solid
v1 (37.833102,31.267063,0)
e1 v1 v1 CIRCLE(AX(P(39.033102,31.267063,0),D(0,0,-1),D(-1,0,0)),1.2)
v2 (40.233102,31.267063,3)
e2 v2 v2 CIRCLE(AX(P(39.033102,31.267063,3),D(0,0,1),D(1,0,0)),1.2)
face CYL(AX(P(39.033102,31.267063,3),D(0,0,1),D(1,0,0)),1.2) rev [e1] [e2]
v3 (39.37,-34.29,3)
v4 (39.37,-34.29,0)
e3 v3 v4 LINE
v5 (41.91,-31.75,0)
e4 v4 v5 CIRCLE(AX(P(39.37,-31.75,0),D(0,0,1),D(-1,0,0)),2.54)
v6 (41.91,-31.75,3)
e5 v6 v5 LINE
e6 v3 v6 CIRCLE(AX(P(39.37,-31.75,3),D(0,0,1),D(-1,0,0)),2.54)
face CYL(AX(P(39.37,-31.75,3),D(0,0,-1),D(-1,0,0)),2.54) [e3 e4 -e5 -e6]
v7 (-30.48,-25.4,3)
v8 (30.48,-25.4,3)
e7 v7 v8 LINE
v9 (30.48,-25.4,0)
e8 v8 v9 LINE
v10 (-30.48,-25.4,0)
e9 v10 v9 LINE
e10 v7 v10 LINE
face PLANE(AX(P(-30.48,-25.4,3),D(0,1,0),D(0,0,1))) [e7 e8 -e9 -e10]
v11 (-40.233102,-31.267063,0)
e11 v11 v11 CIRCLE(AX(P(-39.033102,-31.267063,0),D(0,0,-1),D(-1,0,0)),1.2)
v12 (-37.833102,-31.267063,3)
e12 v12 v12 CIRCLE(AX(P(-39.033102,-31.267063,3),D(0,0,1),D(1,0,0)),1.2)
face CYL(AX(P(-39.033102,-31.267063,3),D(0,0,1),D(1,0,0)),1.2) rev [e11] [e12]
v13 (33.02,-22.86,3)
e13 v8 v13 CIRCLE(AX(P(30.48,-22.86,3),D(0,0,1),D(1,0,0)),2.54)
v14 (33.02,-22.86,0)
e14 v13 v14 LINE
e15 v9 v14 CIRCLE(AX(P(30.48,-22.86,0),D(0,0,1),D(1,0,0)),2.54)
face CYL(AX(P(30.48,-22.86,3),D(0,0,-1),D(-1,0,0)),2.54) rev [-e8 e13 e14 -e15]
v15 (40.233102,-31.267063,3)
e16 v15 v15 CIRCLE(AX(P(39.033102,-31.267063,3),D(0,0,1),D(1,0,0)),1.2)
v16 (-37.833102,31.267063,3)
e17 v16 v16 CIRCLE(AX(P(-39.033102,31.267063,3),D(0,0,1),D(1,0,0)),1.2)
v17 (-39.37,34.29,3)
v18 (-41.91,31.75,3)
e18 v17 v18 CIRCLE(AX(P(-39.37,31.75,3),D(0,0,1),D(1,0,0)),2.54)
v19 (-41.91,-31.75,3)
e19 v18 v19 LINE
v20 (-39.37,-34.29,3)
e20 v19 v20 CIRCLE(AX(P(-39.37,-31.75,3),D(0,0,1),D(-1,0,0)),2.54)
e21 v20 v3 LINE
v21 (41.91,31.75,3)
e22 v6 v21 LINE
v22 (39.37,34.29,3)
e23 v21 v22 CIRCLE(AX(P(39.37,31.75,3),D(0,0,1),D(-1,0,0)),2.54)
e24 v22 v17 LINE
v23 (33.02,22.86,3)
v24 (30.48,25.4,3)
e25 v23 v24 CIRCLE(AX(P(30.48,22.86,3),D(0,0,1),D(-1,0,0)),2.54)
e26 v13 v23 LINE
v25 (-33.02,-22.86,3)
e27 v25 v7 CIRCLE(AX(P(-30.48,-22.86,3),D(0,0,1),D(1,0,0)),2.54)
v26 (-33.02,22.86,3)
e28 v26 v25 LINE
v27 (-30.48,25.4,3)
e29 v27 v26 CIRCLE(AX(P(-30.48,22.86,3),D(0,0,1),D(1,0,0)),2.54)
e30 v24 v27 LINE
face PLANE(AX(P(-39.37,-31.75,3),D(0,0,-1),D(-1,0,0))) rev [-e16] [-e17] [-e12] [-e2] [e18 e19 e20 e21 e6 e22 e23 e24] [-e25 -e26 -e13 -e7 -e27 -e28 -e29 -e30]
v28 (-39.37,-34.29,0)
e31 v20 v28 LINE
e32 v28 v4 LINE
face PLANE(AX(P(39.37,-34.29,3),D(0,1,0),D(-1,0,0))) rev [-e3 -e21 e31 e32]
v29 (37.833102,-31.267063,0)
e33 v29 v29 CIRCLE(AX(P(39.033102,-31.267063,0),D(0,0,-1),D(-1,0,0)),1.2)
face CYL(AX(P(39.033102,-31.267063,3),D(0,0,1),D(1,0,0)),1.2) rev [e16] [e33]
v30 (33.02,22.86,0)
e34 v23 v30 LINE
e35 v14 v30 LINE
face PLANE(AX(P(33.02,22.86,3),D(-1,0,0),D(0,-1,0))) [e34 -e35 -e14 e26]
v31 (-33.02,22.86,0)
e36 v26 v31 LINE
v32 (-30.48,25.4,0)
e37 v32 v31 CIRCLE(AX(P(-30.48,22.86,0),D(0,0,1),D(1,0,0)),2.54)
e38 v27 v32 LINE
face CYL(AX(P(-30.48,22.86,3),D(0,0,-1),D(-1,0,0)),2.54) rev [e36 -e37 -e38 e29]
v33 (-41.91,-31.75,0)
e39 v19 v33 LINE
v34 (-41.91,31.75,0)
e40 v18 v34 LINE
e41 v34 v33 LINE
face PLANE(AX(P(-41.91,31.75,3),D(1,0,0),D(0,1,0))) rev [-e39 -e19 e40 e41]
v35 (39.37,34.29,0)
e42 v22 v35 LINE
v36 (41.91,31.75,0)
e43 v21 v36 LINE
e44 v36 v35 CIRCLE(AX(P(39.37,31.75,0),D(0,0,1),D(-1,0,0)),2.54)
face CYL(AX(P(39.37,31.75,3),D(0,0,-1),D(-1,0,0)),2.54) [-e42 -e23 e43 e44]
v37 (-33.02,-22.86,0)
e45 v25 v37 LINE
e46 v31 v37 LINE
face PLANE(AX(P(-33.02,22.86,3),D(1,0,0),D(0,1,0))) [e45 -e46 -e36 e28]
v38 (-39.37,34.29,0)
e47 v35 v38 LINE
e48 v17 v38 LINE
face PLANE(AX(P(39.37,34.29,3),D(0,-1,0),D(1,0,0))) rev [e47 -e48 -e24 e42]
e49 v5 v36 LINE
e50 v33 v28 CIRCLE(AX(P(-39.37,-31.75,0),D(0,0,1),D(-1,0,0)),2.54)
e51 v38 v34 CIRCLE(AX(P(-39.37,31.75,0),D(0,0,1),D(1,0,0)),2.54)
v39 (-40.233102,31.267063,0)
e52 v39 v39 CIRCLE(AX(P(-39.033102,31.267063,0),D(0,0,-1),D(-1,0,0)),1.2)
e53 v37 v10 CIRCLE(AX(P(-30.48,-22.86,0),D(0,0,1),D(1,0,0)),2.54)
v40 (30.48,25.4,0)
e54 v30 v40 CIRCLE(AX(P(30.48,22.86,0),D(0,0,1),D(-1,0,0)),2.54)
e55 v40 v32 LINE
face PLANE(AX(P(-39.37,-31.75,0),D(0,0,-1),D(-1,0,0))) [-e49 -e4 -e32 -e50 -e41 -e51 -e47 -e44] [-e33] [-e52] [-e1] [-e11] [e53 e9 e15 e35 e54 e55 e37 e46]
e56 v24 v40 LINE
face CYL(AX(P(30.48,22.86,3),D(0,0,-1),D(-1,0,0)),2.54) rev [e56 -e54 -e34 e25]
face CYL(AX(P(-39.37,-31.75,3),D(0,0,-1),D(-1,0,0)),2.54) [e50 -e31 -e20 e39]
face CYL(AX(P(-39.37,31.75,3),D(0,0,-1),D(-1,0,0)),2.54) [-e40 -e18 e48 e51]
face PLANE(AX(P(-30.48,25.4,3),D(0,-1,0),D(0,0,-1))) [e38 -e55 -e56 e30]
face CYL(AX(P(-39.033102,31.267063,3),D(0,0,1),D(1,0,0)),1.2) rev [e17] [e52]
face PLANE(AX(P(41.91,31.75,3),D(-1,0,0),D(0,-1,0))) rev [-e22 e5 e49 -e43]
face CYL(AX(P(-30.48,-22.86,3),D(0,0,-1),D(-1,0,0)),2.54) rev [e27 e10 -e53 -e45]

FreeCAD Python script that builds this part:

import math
import FreeCAD as App
import Part
import Sketcher
from FreeCAD import Vector
Q = App.Units.Quantity


def add_polygon(sketch, points):
    """Adds a closed chain of lines whose ends are joined by coincident constraints."""
    first, n = sketch.GeometryCount, len(points)
    for a, b in zip(points, points[1:] + points[:1]):
        sketch.addGeometry(Part.LineSegment(App.Vector(*a, 0), App.Vector(*b, 0)), False)
    for i in range(n):
        sketch.addConstraint(Sketcher.Constraint("Coincident", first + i, 2, first + (i + 1) % n, 1))

doc = App.newDocument("Part")
params = doc.addObject("Spreadsheet::Sheet", "Params")
for row, (alias, value) in enumerate([
    ("sketch1_radius", "0.1 in"),
    ("sketch1_width", "3.1 in"),
    ("sketch1_width2", "2.4 in"),
    ("sketch1_height", "2.5 in"),
    ("sketch1_height2", "1.8 in"),
    ("pad1_length", "3 mm"),
    ("sketch2_height", "0.12 in"),
    ("groove_angle", "360 deg"),
    ("sketch3_height", "0.12 in"),
    ("groove2_angle", "360 deg"),
], start=1):
    params.set(f"A{row}", alias)
    params.set(f"B{row}", "=" + value)
    params.setAlias(f"B{row}", alias)

body = doc.addObject("PartDesign::Body", "Body")

sketch1 = doc.addObject("Sketcher::SketchObject", "Sketch")
body.addObject(sketch1)
sketch1.AttachmentSupport = (doc.XY_Plane, [""])
sketch1.MapMode = "FlatFace"
sketch1.addGeometry([
    Part.LineSegment(Vector(39.37, 34.29, 0), Vector(-39.37, 34.29, 0)),
    Part.ArcOfCircle(Part.Circle(Vector(-39.37, 31.75, 0), Vector(0, 0, 1), 2.54), math.radians(90), math.radians(180)),
    Part.LineSegment(Vector(-41.91, 31.75, 0), Vector(-41.91, -31.75, 0)),
    Part.ArcOfCircle(Part.Circle(Vector(-39.37, -31.75, 0), Vector(0, 0, 1), 2.54), math.radians(-180), math.radians(-90)),
    Part.LineSegment(Vector(-39.37, -34.29, 0), Vector(39.37, -34.29, 0)),
    Part.ArcOfCircle(Part.Circle(Vector(39.37, -31.75, 0), Vector(0, 0, 1), 2.54), math.radians(-90), math.radians(0)),
    Part.LineSegment(Vector(41.91, -31.75, 0), Vector(41.91, 31.75, 0)),
    Part.ArcOfCircle(Part.Circle(Vector(39.37, 31.75, 0), Vector(0, 0, 1), 2.54), math.radians(0), math.radians(90)),
    Part.ArcOfCircle(Part.Circle(Vector(-30.48, 22.86, 0), Vector(0, 0, 1), 2.54), math.radians(90), math.radians(180)),
    Part.LineSegment(Vector(-30.48, 25.4, 0), Vector(30.48, 25.4, 0)),
    Part.ArcOfCircle(Part.Circle(Vector(30.48, 22.86, 0), Vector(0, 0, 1), 2.54), math.radians(0), math.radians(90)),
    Part.LineSegment(Vector(33.02, 22.86, 0), Vector(33.02, -22.86, 0)),
    Part.ArcOfCircle(Part.Circle(Vector(30.48, -22.86, 0), Vector(0, 0, 1), 2.54), math.radians(-90), math.radians(0)),
    Part.LineSegment(Vector(30.48, -25.4, 0), Vector(-30.48, -25.4, 0)),
    Part.ArcOfCircle(Part.Circle(Vector(-30.48, -22.86, 0), Vector(0, 0, 1), 2.54), math.radians(-180), math.radians(-90)),
    Part.LineSegment(Vector(-33.02, -22.86, 0), Vector(-33.02, 22.86, 0)),
], False)
sketch1.addConstraint([
    Sketcher.Constraint("Tangent", 0, 2, 1, 1),
    Sketcher.Constraint("Tangent", 1, 2, 2, 1),
    Sketcher.Constraint("Tangent", 2, 2, 3, 1),
    Sketcher.Constraint("Tangent", 3, 2, 4, 1),
    Sketcher.Constraint("Tangent", 4, 2, 5, 1),
    Sketcher.Constraint("Tangent", 5, 2, 6, 1),
    Sketcher.Constraint("Tangent", 6, 2, 7, 1),
    Sketcher.Constraint("Tangent", 7, 2, 0, 1),
    Sketcher.Constraint("Tangent", 8, 1, 9, 1),
    Sketcher.Constraint("Tangent", 9, 2, 10, 2),
    Sketcher.Constraint("Tangent", 10, 1, 11, 1),
    Sketcher.Constraint("Tangent", 11, 2, 12, 2),
    Sketcher.Constraint("Tangent", 12, 1, 13, 1),
    Sketcher.Constraint("Tangent", 13, 2, 14, 2),
    Sketcher.Constraint("Tangent", 14, 1, 15, 1),
    Sketcher.Constraint("Tangent", 15, 2, 8, 2),
    Sketcher.Constraint("Horizontal", 0),
    Sketcher.Constraint("Vertical", 2),
    Sketcher.Constraint("Horizontal", 4),
    Sketcher.Constraint("Vertical", 6),
    Sketcher.Constraint("Horizontal", 9),
    Sketcher.Constraint("Vertical", 11),
    Sketcher.Constraint("Horizontal", 13),
    Sketcher.Constraint("Vertical", 15),
    Sketcher.Constraint("Equal", 1, 3),
    Sketcher.Constraint("Equal", 3, 5),
    Sketcher.Constraint("Equal", 5, 7),
    Sketcher.Constraint("Equal", 7, 8),
    Sketcher.Constraint("Equal", 8, 10),
    Sketcher.Constraint("Equal", 10, 12),
    Sketcher.Constraint("Equal", 12, 14),
    Sketcher.Constraint("Symmetric", 1, 3, 5, 3, -1, 1),
    Sketcher.Constraint("Symmetric", 8, 3, 12, 3, -1, 1),
    Sketcher.Constraint("Radius", 1, Q("0.1 in")),
    Sketcher.Constraint("DistanceX", 0, 2, 0, 1, Q("3.1 in")),
    Sketcher.Constraint("DistanceX", 9, 1, 9, 2, Q("2.4 in")),
    Sketcher.Constraint("DistanceY", 2, 2, 2, 1, Q("2.5 in")),
    Sketcher.Constraint("DistanceY", 11, 2, 11, 1, Q("1.8 in")),
])
sketch1.setExpression("Constraints[33]", "Params.sketch1_radius")
sketch1.setExpression("Constraints[34]", "Params.sketch1_width")
sketch1.setExpression("Constraints[35]", "Params.sketch1_width2")
sketch1.setExpression("Constraints[36]", "Params.sketch1_height")
sketch1.setExpression("Constraints[37]", "Params.sketch1_height2")
pad1 = doc.addObject("PartDesign::Pad", "Pad")
body.addObject(pad1)
pad1.Profile = sketch1
pad1.setExpression("Length", "Params.pad1_length")

sketch2 = doc.addObject("Sketcher::SketchObject", "Sketch001")
body.addObject(sketch2)
sketch2.AttachmentSupport = (doc.YZ_Plane, [""])
sketch2.MapMode = "FlatFace"
sketch2.AttachmentOffset = App.Placement(Vector(0, 0, -39.033102), App.Rotation())
add_polygon(sketch2, [(31.267063, -0.769033), (31.267063, 3), (30.067063, 3), (30.067063, -0.048)])
sketch2.addGeometry(Part.LineSegment(Vector(31.267063, 3, 0), Vector(31.267063, -0.769033, 0)), True)
sketch2.addConstraint([
    Sketcher.Constraint("Vertical", 0),
    Sketcher.Constraint("Horizontal", 1),
    Sketcher.Constraint("Vertical", 2),
    Sketcher.Constraint("Vertical", 4),
    Sketcher.Constraint("Coincident", 4, 1, 0, 2),
    Sketcher.Constraint("Equal", 0, 4),
    Sketcher.Constraint("Angle", 3, Q("-31 deg")),
    Sketcher.Constraint("DistanceY", 2, 2, 2, 1, Q("0.12 in")),
    Sketcher.Constraint("DistanceX", 1, 2, 1, 1, 1.2),
    Sketcher.Constraint("DistanceY", -1, 1, 0, 2, 3.0),
    Sketcher.Constraint("DistanceX", -1, 1, 0, 2, 31.267063),
])
sketch2.setExpression("Constraints[11]", "Params.sketch2_height")
groove = doc.addObject("PartDesign::Groove", "Groove")
body.addObject(groove)
groove.Profile = sketch2
groove.ReferenceAxis = (sketch2, ["Axis0"])
groove.setExpression("Angle", "Params.groove_angle")
doc.recompute()

mirrored = doc.addObject("PartDesign::Mirrored", "Mirrored")
body.addObject(mirrored)
mirrored.Originals = [groove]
mirrored.MirrorPlane = (doc.XZ_Plane, [""])
body.Tip = mirrored
doc.recompute()

mirrored2 = doc.addObject("PartDesign::Mirrored", "Mirrored001")
body.addObject(mirrored2)
mirrored2.Originals = [groove]
mirrored2.MirrorPlane = (doc.YZ_Plane, [""])
body.Tip = mirrored2

sketch3 = doc.addObject("Sketcher::SketchObject", "Sketch002")
body.addObject(sketch3)
sketch3.AttachmentSupport = (doc.YZ_Plane, [""])
sketch3.MapMode = "FlatFace"
sketch3.AttachmentOffset = App.Placement(Vector(0, 0, 39.033102), App.Rotation())
add_polygon(sketch3, [(-31.267063, -0.769033), (-31.267063, 3), (-30.067063, 3), (-30.067063, -0.048)])
sketch3.addGeometry(Part.LineSegment(Vector(-31.267063, 3, 0), Vector(-31.267063, -0.769033, 0)), True)
sketch3.addConstraint([
    Sketcher.Constraint("Vertical", 0),
    Sketcher.Constraint("Horizontal", 1),
    Sketcher.Constraint("Vertical", 2),
    Sketcher.Constraint("Vertical", 4),
    Sketcher.Constraint("Coincident", 4, 1, 0, 2),
    Sketcher.Constraint("Equal", 0, 4),
    Sketcher.Constraint("Angle", 3, Q("-149 deg")),
    Sketcher.Constraint("DistanceY", 2, 2, 2, 1, Q("0.12 in")),
    Sketcher.Constraint("DistanceX", 1, 1, 1, 2, 1.2),
    Sketcher.Constraint("DistanceY", -1, 1, 0, 2, 3.0),
    Sketcher.Constraint("DistanceX", 0, 2, -1, 1, 31.267063),
])
sketch3.setExpression("Constraints[11]", "Params.sketch3_height")
groove2 = doc.addObject("PartDesign::Groove", "Groove001")
body.addObject(groove2)
groove2.Profile = sketch3
groove2.ReferenceAxis = (sketch3, ["Axis0"])
groove2.setExpression("Angle", "Params.groove2_angle")

doc.recompute()
